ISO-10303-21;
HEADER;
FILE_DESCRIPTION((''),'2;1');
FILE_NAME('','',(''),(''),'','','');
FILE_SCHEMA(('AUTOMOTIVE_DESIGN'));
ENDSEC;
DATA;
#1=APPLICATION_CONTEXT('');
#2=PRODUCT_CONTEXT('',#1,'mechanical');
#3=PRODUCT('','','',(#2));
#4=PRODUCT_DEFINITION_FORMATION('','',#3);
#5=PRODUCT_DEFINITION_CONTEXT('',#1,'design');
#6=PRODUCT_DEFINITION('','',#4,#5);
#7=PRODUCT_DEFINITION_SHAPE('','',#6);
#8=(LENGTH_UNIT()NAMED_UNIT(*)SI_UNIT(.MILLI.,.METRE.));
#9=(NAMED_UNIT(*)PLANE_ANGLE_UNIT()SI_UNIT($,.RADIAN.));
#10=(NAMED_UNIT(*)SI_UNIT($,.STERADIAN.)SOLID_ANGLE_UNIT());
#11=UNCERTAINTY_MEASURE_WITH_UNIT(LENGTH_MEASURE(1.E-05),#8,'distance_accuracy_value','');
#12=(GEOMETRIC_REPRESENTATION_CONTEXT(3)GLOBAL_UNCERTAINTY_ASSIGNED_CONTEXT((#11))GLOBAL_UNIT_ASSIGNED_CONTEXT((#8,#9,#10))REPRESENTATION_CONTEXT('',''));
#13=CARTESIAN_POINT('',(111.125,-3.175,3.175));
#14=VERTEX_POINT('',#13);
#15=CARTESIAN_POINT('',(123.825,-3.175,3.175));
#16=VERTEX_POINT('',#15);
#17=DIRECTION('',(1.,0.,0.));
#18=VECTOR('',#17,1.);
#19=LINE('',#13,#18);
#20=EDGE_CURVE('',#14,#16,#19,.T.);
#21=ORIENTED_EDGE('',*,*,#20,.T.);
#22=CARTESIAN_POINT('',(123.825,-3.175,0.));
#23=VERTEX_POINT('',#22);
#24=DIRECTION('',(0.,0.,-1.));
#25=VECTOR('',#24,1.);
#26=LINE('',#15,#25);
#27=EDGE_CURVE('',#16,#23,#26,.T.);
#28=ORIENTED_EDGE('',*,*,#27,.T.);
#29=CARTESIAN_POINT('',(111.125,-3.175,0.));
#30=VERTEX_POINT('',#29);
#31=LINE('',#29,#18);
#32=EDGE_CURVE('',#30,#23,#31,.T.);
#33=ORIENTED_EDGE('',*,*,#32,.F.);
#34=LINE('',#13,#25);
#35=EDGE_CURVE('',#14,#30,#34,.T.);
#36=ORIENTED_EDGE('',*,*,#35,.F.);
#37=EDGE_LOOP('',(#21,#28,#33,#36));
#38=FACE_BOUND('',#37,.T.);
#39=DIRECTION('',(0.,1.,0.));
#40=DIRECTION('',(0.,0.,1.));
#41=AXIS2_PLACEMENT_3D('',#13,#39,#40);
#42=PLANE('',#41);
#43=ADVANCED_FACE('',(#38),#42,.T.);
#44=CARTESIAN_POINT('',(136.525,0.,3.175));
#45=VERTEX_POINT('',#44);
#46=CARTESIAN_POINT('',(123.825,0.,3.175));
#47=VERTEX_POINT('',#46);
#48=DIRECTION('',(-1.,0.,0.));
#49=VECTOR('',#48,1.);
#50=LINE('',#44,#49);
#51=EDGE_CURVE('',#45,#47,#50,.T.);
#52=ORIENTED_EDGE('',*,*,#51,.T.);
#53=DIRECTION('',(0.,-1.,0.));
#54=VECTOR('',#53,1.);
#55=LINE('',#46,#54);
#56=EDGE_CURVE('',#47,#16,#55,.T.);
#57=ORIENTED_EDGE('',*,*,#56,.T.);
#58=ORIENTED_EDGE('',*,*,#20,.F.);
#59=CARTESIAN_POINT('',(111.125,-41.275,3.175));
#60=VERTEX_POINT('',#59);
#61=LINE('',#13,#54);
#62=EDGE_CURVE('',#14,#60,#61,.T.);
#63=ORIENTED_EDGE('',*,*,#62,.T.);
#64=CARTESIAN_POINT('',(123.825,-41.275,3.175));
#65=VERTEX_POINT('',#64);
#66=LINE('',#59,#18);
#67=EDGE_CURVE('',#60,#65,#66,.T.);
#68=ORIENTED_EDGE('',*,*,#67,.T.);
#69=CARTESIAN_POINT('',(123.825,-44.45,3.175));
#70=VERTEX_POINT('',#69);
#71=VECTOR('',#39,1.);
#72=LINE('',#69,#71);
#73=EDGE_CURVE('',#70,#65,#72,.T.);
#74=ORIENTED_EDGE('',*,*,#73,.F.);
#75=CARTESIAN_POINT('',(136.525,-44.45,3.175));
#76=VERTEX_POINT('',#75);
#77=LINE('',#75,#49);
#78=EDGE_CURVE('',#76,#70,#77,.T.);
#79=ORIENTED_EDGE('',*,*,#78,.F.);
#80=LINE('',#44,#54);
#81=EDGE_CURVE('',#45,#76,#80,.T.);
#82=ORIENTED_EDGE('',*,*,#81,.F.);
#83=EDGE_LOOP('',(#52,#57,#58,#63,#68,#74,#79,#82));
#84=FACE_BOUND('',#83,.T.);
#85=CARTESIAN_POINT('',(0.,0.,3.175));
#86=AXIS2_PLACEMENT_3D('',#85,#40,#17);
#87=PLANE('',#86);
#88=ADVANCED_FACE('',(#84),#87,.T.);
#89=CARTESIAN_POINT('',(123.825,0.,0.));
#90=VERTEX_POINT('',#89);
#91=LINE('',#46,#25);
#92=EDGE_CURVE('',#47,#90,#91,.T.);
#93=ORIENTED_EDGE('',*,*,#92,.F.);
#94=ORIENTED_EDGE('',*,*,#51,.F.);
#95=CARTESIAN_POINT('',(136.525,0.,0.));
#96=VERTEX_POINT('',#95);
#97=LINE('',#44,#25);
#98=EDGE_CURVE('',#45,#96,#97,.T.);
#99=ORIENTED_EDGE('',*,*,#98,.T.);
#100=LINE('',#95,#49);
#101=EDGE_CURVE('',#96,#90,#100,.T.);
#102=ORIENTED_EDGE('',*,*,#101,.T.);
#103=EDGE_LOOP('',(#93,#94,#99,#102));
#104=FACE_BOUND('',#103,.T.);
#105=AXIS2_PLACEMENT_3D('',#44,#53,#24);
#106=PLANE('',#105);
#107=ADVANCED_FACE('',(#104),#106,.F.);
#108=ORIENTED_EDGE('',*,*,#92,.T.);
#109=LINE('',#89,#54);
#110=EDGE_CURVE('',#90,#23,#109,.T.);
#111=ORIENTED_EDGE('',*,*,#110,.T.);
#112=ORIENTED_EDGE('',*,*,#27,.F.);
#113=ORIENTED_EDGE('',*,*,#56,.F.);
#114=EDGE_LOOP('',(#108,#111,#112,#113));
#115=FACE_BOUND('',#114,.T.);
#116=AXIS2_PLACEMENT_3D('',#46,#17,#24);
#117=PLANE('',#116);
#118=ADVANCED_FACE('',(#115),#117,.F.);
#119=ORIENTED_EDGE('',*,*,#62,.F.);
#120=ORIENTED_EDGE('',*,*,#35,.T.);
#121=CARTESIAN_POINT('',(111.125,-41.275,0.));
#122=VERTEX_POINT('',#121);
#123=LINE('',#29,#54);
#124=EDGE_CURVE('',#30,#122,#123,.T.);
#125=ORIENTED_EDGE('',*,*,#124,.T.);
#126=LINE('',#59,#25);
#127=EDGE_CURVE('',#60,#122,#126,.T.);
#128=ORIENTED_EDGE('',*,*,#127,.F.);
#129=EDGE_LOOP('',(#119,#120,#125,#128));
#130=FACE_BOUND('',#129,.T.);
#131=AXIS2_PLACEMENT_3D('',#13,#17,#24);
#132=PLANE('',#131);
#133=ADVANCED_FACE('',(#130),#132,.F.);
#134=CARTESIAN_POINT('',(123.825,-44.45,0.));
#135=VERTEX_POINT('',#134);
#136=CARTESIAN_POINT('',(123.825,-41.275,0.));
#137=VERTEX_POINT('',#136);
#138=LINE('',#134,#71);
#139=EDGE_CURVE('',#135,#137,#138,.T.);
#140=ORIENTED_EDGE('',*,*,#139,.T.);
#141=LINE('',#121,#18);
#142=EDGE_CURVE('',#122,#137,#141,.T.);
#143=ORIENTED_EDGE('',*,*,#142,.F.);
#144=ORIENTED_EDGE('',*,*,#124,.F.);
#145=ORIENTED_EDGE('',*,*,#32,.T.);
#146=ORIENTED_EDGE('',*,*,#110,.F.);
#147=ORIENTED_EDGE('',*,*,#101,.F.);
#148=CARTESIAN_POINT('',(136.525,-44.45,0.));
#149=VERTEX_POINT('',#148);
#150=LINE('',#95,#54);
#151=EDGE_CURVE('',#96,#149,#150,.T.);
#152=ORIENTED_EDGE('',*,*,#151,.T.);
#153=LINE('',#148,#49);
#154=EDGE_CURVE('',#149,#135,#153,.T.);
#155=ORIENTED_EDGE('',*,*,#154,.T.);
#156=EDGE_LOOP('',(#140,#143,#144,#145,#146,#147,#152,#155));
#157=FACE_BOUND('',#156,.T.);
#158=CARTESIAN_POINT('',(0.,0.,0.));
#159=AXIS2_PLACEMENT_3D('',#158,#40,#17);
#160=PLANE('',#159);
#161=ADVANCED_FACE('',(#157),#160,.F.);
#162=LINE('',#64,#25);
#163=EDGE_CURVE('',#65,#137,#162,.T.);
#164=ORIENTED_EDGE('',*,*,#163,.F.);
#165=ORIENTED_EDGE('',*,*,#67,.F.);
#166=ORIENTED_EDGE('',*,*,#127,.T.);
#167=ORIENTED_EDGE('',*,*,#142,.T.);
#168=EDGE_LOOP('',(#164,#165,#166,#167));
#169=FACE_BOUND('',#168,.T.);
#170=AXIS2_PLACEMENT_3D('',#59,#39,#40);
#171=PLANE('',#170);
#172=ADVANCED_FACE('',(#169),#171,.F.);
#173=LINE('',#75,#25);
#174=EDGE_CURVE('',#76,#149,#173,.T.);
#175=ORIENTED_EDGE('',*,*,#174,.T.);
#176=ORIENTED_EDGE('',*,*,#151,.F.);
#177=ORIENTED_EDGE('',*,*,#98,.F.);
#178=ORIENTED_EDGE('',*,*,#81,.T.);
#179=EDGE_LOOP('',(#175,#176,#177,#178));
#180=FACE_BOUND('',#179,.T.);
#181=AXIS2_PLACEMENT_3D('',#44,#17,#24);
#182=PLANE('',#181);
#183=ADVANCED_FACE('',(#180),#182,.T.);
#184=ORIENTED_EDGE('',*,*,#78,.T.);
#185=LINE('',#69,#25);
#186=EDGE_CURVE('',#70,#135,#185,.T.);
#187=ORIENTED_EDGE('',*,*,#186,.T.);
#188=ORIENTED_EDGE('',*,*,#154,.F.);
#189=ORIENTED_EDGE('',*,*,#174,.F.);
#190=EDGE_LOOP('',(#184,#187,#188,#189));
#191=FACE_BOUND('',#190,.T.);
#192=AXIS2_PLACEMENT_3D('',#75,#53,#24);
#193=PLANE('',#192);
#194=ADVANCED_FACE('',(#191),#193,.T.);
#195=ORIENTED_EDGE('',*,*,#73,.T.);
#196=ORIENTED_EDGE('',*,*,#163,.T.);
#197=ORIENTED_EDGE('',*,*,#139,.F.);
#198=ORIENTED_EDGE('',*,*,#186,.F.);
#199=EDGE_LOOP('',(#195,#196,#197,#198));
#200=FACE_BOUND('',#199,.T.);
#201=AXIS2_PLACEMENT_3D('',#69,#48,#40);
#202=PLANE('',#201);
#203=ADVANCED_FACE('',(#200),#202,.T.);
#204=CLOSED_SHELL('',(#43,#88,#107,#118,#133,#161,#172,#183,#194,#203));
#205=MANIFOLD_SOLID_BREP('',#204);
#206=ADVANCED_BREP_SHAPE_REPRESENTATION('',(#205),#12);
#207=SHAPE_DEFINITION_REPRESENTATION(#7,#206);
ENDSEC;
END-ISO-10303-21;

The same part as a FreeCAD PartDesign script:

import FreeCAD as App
import Part
import Sketcher
from FreeCAD import Vector
Q = App.Units.Quantity

doc = App.newDocument("Part")
params = doc.addObject("Spreadsheet::Sheet", "Params")
for row, (alias, value) in enumerate([
    ("sketch1_width", "0.5 in"),
    ("sketch1_height", "1.5 in"),
    ("sketch1_height2", "1.75 in"),
    ("pad1_length", "0.125 in"),
], start=1):
    params.set(f"A{row}", alias)
    params.set(f"B{row}", "=" + value)
    params.setAlias(f"B{row}", alias)

body = doc.addObject("PartDesign::Body", "Body")

# Sketch on XY plane
sketch1 = body.newObject("Sketcher::SketchObject", "Sketch")
sketch1.AttachmentSupport = (doc.getObject("XY_Plane"), [""])
sketch1.MapMode = "FlatFace"
sketch1.addGeometry(Part.LineSegment(Vector(136.5, 0, 0), Vector(123.8, 0, 0)), False)
sketch1.addGeometry(Part.LineSegment(Vector(123.8, 0, 0), Vector(123.8, -3.2, 0)), False)
sketch1.addGeometry(Part.LineSegment(Vector(123.8, -3.2, 0), Vector(111.1, -3.2, 0)), False)
sketch1.addGeometry(Part.LineSegment(Vector(111.1, -3.2, 0), Vector(111.1, -41.3, 0)), False)
sketch1.addGeometry(Part.LineSegment(Vector(111.1, -41.3, 0), Vector(123.8, -41.3, 0)), False)
sketch1.addGeometry(Part.LineSegment(Vector(123.8, -41.3, 0), Vector(123.8, -44.5, 0)), False)
sketch1.addGeometry(Part.LineSegment(Vector(123.8, -44.5, 0), Vector(136.5, -44.5, 0)), False)
sketch1.addGeometry(Part.LineSegment(Vector(136.5, -44.5, 0), Vector(136.5, 0, 0)), False)
sketch1.addConstraint(Sketcher.Constraint("Coincident", 0, 2, 1, 1))
sketch1.addConstraint(Sketcher.Constraint("Coincident", 1, 2, 2, 1))
sketch1.addConstraint(Sketcher.Constraint("Coincident", 2, 2, 3, 1))
sketch1.addConstraint(Sketcher.Constraint("Coincident", 3, 2, 4, 1))
sketch1.addConstraint(Sketcher.Constraint("Coincident", 4, 2, 5, 1))
sketch1.addConstraint(Sketcher.Constraint("Coincident", 5, 2, 6, 1))
sketch1.addConstraint(Sketcher.Constraint("Coincident", 6, 2, 7, 1))
sketch1.addConstraint(Sketcher.Constraint("Coincident", 7, 2, 0, 1))
sketch1.addConstraint(Sketcher.Constraint("Horizontal", 0))
sketch1.addConstraint(Sketcher.Constraint("Vertical", 1))
sketch1.addConstraint(Sketcher.Constraint("Horizontal", 2))
sketch1.addConstraint(Sketcher.Constraint("Vertical", 3))
sketch1.addConstraint(Sketcher.Constraint("Horizontal", 4))
sketch1.addConstraint(Sketcher.Constraint("Vertical", 5))
sketch1.addConstraint(Sketcher.Constraint("Horizontal", 6))
sketch1.addConstraint(Sketcher.Constraint("Vertical", 7))
sketch1.addConstraint(Sketcher.Constraint("PointOnObject", 0, 2, -1))
sketch1.addConstraint(Sketcher.Constraint("Vertical", 1, 2, 4, 2))
sketch1.addConstraint(Sketcher.Constraint("Equal", 0, 2))
sketch1.addConstraint(Sketcher.Constraint("Equal", 1, 5))
sketch1.addConstraint(Sketcher.Constraint("DistanceX", 0, 2, 0, 1, Q("0.5 in")))
sketch1.addConstraint(Sketcher.Constraint("DistanceY", 3, 2, 3, 1, Q("1.5 in")))
sketch1.addConstraint(Sketcher.Constraint("DistanceY", 7, 1, 7, 2, Q("1.75 in")))
sketch1.addConstraint(Sketcher.Constraint("DistanceX", -1, 1, 0, 2, Q("4.875 in")))
sketch1.setExpression("Constraints[20]", "Params.sketch1_width")
sketch1.setExpression("Constraints[21]", "Params.sketch1_height")
sketch1.setExpression("Constraints[22]", "Params.sketch1_height2")
pad1 = body.newObject("PartDesign::Pad", "Pad")
pad1.Profile = sketch1
pad1.setExpression("Length", "Params.pad1_length")

doc.recompute()
